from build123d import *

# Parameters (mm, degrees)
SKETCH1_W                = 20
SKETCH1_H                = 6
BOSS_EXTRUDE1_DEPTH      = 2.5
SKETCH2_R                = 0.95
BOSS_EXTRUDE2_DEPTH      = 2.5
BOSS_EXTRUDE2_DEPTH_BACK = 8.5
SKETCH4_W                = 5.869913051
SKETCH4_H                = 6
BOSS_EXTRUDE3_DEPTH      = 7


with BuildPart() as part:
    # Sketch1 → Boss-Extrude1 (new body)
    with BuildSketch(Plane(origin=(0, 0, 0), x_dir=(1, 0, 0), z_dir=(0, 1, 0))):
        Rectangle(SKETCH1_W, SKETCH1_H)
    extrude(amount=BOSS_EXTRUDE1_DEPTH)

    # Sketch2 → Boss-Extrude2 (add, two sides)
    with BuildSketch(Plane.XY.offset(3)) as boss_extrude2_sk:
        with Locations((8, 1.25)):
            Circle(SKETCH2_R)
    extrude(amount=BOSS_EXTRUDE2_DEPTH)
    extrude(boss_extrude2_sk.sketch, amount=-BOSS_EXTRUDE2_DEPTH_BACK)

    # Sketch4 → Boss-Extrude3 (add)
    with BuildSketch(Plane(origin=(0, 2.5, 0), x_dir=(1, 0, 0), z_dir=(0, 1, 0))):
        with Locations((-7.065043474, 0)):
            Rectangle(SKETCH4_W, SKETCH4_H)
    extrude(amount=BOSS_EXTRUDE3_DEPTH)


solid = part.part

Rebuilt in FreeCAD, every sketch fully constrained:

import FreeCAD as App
import Part
import Sketcher

V = App.Vector

doc = App.newDocument("Part")
body = doc.addObject("PartDesign::Body", "Body")

# Sketch on XZ plane
sketch1 = doc.addObject("Sketcher::SketchObject", "Sketch")
body.addObject(sketch1)
sketch1.AttachmentSupport = (doc.XZ_Plane, [""])
sketch1.MapMode = "FlatFace"
sketch1.addGeometry([
    Part.LineSegment(V(-10, -3, 0), V(-10, 3, 0)),
    Part.LineSegment(V(-10, 3, 0), V(10, 3, 0)),
    Part.LineSegment(V(10, 3, 0), V(10, -3, 0)),
    Part.LineSegment(V(10, -3, 0), V(-10, -3, 0)),
], False)
sketch1.addConstraint([
    Sketcher.Constraint("Coincident", 0, 2, 1, 1),
    Sketcher.Constraint("Coincident", 1, 2, 2, 1),
    Sketcher.Constraint("Coincident", 2, 2, 3, 1),
    Sketcher.Constraint("Coincident", 3, 2, 0, 1),
    Sketcher.Constraint("Vertical", 0),
    Sketcher.Constraint("Horizontal", 1),
    Sketcher.Constraint("Vertical", 2),
    Sketcher.Constraint("Horizontal", 3),
    Sketcher.Constraint("Symmetric", 0, 2, 2, 2, -1, 1),
    Sketcher.Constraint("DistanceX", 1, 1, 1, 2, 20.0),
    Sketcher.Constraint("DistanceY", 0, 1, 0, 2, 6.0),
])
pad1 = doc.addObject("PartDesign::Pad", "Pad")
body.addObject(pad1)
pad1.Profile = sketch1
pad1.Length = 2.5
pad1.Reversed = True

# Sketch on XY plane
sketch2 = doc.addObject("Sketcher::SketchObject", "Sketch001")
body.addObject(sketch2)
sketch2.AttachmentSupport = (doc.XY_Plane, [""])
sketch2.MapMode = "FlatFace"
sketch2.AttachmentOffset = App.Placement(V(0, 0, 3), App.Rotation())
sketch2.addGeometry(Part.Circle(V(8, 1.2, 0), V(0, 0, 1), 0.9), False)
sketch2.addConstraint([
    Sketcher.Constraint("Diameter", 0, 1.9),
    Sketcher.Constraint("DistanceX", -1, 1, 0, 3, 8.0),
    Sketcher.Constraint("DistanceY", -1, 1, 0, 3, 1.25),
])
pad2 = doc.addObject("PartDesign::Pad", "Pad001")
body.addObject(pad2)
pad2.Profile = sketch2
pad2.Type = "TwoLengths"
pad2.Length = 2.5
pad2.Length2 = 8.5

# Sketch on XZ plane
sketch3 = doc.addObject("Sketcher::SketchObject", "Sketch002")
body.addObject(sketch3)
sketch3.AttachmentSupport = (doc.XZ_Plane, [""])
sketch3.MapMode = "FlatFace"
sketch3.AttachmentOffset = App.Placement(V(0, 0, -2.5), App.Rotation())
sketch3.addGeometry([
    Part.LineSegment(V(-10, -3, 0), V(-10, 3, 0)),
    Part.LineSegment(V(-10, 3, 0), V(-4, 3, 0)),
    Part.LineSegment(V(-4, 3, 0), V(-4, -3, 0)),
    Part.LineSegment(V(-4, -3, 0), V(-10, -3, 0)),
], False)
sketch3.addConstraint([
    Sketcher.Constraint("Coincident", 0, 2, 1, 1),
    Sketcher.Constraint("Coincident", 1, 2, 2, 1),
    Sketcher.Constraint("Coincident", 2, 2, 3, 1),
    Sketcher.Constraint("Coincident", 3, 2, 0, 1),
    Sketcher.Constraint("Vertical", 0),
    Sketcher.Constraint("Horizontal", 1),
    Sketcher.Constraint("Vertical", 2),
    Sketcher.Constraint("Horizontal", 3),
    Sketcher.Constraint("DistanceY", 0, 1, 0, 2, 6.0),
    Sketcher.Constraint("DistanceX", 0, 2, -1, 1, 10.0),
    Sketcher.Constraint("DistanceY", -1, 1, 0, 2, 3.0),
    Sketcher.Constraint("DistanceX", 1, 1, 1, 2, 5.869913),
])
pad3 = doc.addObject("PartDesign::Pad", "Pad002")
body.addObject(pad3)
pad3.Profile = sketch3
pad3.Length = 7
pad3.Reversed = True

doc.recompute()
